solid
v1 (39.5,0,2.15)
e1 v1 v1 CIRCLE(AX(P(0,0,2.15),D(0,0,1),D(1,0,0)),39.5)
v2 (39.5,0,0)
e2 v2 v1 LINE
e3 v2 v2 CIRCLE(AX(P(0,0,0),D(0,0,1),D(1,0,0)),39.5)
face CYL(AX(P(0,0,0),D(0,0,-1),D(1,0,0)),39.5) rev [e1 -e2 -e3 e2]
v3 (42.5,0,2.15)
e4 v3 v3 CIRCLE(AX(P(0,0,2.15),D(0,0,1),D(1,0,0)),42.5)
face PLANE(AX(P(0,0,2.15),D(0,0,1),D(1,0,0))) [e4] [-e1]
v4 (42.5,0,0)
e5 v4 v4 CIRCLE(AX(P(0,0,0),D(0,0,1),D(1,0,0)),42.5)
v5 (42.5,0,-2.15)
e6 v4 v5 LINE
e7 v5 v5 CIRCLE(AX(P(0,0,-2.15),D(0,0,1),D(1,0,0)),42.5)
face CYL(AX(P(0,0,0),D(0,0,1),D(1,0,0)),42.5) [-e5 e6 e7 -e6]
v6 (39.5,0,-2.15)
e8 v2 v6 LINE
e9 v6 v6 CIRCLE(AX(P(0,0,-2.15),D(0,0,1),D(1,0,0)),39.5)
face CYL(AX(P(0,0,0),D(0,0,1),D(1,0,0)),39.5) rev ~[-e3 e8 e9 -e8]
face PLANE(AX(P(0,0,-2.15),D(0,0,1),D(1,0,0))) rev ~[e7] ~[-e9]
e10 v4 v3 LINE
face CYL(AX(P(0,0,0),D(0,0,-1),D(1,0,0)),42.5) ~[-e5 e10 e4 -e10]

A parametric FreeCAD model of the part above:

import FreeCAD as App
import Part
import Sketcher
Q = App.Units.Quantity

doc = App.newDocument("Part")
body = doc.addObject("PartDesign::Body", "Body")

# Sketch on XY plane
sketch1 = body.newObject("Sketcher::SketchObject", "Sketch")
sketch1.AttachmentSupport = (doc.getObject("XY_Plane"), [""])
sketch1.MapMode = "FlatFace"
sketch1.addGeometry(Part.Circle(App.Vector(0, 0, 0), App.Vector(0, 0, 1), 42), False)
sketch1.addGeometry(Part.Circle(App.Vector(0, 0, 0), App.Vector(0, 0, 1), 40), False)
sketch1.addConstraint(Sketcher.Constraint("Coincident", 0, 3, -1, 1))
sketch1.addConstraint(Sketcher.Constraint("Coincident", 1, 3, -1, 1))
sketch1.addConstraint(Sketcher.Constraint("Diameter", 0, Q("85 mm")))
sketch1.addConstraint(Sketcher.Constraint("Diameter", 1, Q("79 mm")))
pad1 = body.newObject("PartDesign::Pad", "Pad")
pad1.Profile = sketch1
pad1.Length = 4.3
pad1.Midplane = True

doc.recompute()
